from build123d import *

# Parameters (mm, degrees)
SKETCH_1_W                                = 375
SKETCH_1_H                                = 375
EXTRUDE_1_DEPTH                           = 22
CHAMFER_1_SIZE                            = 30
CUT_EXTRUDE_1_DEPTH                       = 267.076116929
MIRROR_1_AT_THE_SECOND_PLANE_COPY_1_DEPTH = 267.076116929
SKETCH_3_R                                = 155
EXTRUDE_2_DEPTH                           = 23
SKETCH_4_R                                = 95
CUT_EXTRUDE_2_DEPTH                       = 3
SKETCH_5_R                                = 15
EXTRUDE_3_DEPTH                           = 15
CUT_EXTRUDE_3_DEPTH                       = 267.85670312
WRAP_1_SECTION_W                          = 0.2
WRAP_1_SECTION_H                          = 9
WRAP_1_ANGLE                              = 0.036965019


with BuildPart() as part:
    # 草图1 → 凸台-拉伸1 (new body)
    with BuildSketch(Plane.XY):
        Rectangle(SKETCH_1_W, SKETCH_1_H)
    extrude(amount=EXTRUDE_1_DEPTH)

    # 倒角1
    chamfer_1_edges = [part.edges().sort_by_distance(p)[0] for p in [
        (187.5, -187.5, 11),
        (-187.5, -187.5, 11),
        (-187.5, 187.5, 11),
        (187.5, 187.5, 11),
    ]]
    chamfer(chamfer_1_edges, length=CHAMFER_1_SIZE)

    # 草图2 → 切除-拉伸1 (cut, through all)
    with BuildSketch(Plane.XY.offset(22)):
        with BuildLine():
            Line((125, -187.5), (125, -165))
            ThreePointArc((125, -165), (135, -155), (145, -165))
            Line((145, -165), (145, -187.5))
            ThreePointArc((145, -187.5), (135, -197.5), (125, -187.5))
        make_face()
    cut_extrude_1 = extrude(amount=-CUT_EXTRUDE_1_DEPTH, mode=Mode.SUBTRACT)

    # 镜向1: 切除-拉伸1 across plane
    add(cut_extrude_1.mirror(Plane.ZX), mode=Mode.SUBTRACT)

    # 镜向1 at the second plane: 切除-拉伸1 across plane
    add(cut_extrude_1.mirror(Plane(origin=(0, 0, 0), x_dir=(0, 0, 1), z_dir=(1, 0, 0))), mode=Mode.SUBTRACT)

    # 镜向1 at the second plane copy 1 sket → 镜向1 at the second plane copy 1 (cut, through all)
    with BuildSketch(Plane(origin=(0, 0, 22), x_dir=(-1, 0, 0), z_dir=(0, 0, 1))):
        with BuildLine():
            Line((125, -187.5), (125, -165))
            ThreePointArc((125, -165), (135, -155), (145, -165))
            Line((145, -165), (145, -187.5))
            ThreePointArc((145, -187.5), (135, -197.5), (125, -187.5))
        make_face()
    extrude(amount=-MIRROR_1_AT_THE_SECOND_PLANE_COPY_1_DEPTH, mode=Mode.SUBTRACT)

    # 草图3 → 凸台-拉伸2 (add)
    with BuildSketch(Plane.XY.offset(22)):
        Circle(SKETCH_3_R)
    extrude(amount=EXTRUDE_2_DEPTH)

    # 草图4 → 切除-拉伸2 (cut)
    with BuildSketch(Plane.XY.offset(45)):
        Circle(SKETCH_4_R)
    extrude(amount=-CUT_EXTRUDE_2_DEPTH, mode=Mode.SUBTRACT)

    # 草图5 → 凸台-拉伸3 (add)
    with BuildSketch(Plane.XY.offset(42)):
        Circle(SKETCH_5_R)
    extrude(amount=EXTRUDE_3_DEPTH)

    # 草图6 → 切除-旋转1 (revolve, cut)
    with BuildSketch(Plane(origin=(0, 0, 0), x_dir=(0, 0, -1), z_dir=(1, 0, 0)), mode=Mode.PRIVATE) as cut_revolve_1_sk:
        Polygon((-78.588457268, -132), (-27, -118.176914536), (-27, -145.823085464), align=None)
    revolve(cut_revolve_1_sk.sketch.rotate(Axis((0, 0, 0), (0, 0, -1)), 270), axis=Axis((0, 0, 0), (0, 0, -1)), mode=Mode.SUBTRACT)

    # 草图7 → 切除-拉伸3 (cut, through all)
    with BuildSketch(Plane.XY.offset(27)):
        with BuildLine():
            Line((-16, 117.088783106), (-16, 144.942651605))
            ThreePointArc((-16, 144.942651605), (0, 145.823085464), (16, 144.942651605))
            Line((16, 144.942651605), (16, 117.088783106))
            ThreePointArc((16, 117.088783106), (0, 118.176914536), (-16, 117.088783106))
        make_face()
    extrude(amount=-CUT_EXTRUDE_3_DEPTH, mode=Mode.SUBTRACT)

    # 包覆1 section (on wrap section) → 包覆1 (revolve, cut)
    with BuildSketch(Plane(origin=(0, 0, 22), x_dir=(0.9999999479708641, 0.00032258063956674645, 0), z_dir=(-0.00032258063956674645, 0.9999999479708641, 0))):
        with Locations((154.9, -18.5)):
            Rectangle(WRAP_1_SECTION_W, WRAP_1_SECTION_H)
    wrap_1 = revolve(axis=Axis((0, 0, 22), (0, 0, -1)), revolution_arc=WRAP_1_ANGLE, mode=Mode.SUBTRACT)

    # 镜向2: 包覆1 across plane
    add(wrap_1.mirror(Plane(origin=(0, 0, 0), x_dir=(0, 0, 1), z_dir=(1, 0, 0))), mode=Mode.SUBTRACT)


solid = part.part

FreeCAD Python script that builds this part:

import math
import FreeCAD as App
import Part
import Sketcher
from FreeCAD import Vector
Q = App.Units.Quantity


def edges_at(feature, points):
    """Names of the edges that pass closest to the given points."""
    edges = feature.Shape.Edges
    near = lambda p: min(range(len(edges)), key=lambda i: edges[i].distToShape(Part.Vertex(*p))[0])
    return sorted({f"Edge{near(p) + 1}" for p in points})

doc = App.newDocument("Part")
params = doc.addObject("Spreadsheet::Sheet", "Params")
for row, (alias, value) in enumerate([
    ("sketch1_width", "375 mm"),
    ("pad1_length", "22 mm"),
    ("chamfer_size", "30 mm"),
    ("sketch2_radius", "10 mm"),
    ("sketch2_height", "22.5 mm"),
    ("sketch3_radius", "10 mm"),
    ("sketch3_height", "22.5 mm"),
    ("sketch4_diameter", "310 mm"),
    ("pad2_length", "23 mm"),
    ("sketch5_diameter", "190 mm"),
    ("pocket3_length", "3 mm"),
    ("sketch6_diameter", "30 mm"),
    ("pad3_length", "15 mm"),
    ("groove_angle", "360 deg"),
    ("sketch9_height", "9 mm"),
    ("sketch9_width", "0.2 mm"),
    ("groove2_angle", "0.036965 deg"),
], start=1):
    params.set(f"A{row}", alias)
    params.set(f"B{row}", "=" + value)
    params.setAlias(f"B{row}", alias)

body = doc.addObject("PartDesign::Body", "Body")

# Sketch on XY plane
sketch1 = body.newObject("Sketcher::SketchObject", "Sketch")
sketch1.AttachmentSupport = (doc.getObject("XY_Plane"), [""])
sketch1.MapMode = "FlatFace"
sketch1.addGeometry([
    Part.LineSegment(Vector(-188, 188, 0), Vector(-188, -188, 0)),
    Part.LineSegment(Vector(-188, -188, 0), Vector(188, -188, 0)),
    Part.LineSegment(Vector(188, -188, 0), Vector(188, 188, 0)),
    Part.LineSegment(Vector(188, 188, 0), Vector(-188, 188, 0)),
], False)
sketch1.addConstraint([
    Sketcher.Constraint("Coincident", 0, 2, 1, 1),
    Sketcher.Constraint("Coincident", 1, 2, 2, 1),
    Sketcher.Constraint("Coincident", 2, 2, 3, 1),
    Sketcher.Constraint("Coincident", 3, 2, 0, 1),
    Sketcher.Constraint("Vertical", 0),
    Sketcher.Constraint("Horizontal", 1),
    Sketcher.Constraint("Vertical", 2),
    Sketcher.Constraint("Horizontal", 3),
    Sketcher.Constraint("Symmetric", 0, 2, 2, 2, -1, 1),
    Sketcher.Constraint("Equal", 3, 0),
    Sketcher.Constraint("DistanceX", 1, 1, 1, 2, 375.0),
])
sketch1.setExpression("Constraints[10]", "Params.sketch1_width")
pad1 = body.newObject("PartDesign::Pad", "Pad")
pad1.Profile = sketch1
pad1.setExpression("Length", "Params.pad1_length")
doc.recompute()

chamfer = body.newObject("PartDesign::Chamfer", "Chamfer")
chamfer.Base = (pad1, edges_at(pad1, [
    (187.5, -187.5, 11),
    (-187.5, -187.5, 11),
    (-187.5, 187.5, 11),
    (187.5, 187.5, 11),
]))
chamfer.setExpression("Size", "Params.chamfer_size")

# Sketch on XY plane
sketch2 = body.newObject("Sketcher::SketchObject", "Sketch001")
sketch2.AttachmentSupport = (doc.getObject("XY_Plane"), [""])
sketch2.MapMode = "FlatFace"
sketch2.AttachmentOffset = App.Placement(Vector(0, 0, 22), App.Rotation())
sketch2.addGeometry([
    Part.LineSegment(Vector(125, -165, 0), Vector(125, -188, 0)),
    Part.ArcOfCircle(Part.Circle(Vector(135, -188, 0), Vector(0, 0, 1), 10), math.radians(180), math.radians(360)),
    Part.LineSegment(Vector(145, -188, 0), Vector(145, -165, 0)),
    Part.ArcOfCircle(Part.Circle(Vector(135, -165, 0), Vector(0, 0, 1), 10), math.radians(0), math.radians(180)),
], False)
sketch2.addConstraint([
    Sketcher.Constraint("Tangent", 0, 2, 1, 1),
    Sketcher.Constraint("Tangent", 1, 2, 2, 1),
    Sketcher.Constraint("Tangent", 2, 2, 3, 1),
    Sketcher.Constraint("Tangent", 3, 2, 0, 1),
    Sketcher.Constraint("Vertical", 0),
    Sketcher.Constraint("Vertical", 2),
    Sketcher.Constraint("Radius", 1, 10.0),
    Sketcher.Constraint("DistanceY", 0, 2, 0, 1, 22.5),
    Sketcher.Constraint("DistanceX", -1, 1, 1, 3, 135.0),
    Sketcher.Constraint("DistanceY", 3, 3, -1, 1, 165.0),
])
sketch2.setExpression("Constraints[6]", "Params.sketch2_radius")
sketch2.setExpression("Constraints[7]", "Params.sketch2_height")
pocket1 = body.newObject("PartDesign::Pocket", "Pocket")
pocket1.Profile = sketch2
pocket1.Type = "ThroughAll"
doc.recompute()

mirrored = body.newObject("PartDesign::Mirrored", "Mirrored")
mirrored.Originals = [pocket1]
mirrored.MirrorPlane = (doc.getObject("XZ_Plane"), [""])
body.Tip = mirrored
doc.recompute()

mirrored2 = body.newObject("PartDesign::Mirrored", "Mirrored001")
mirrored2.Originals = [pocket1]
mirrored2.MirrorPlane = (doc.getObject("YZ_Plane"), [""])
body.Tip = mirrored2

# Sketch on XY plane
sketch3 = body.newObject("Sketcher::SketchObject", "Sketch002")
sketch3.AttachmentSupport = (doc.getObject("XY_Plane"), [""])
sketch3.MapMode = "FlatFace"
sketch3.AttachmentOffset = App.Placement(Vector(0, 0, 22), App.Rotation())
sketch3.addGeometry([
    Part.LineSegment(Vector(-125, 165, 0), Vector(-125, 188, 0)),
    Part.ArcOfCircle(Part.Circle(Vector(-135, 188, 0), Vector(0, 0, 1), 10), math.radians(0), math.radians(180)),
    Part.LineSegment(Vector(-145, 188, 0), Vector(-145, 165, 0)),
    Part.ArcOfCircle(Part.Circle(Vector(-135, 165, 0), Vector(0, 0, 1), 10), math.radians(180), math.radians(360)),
], False)
sketch3.addConstraint([
    Sketcher.Constraint("Tangent", 0, 2, 1, 1),
    Sketcher.Constraint("Tangent", 1, 2, 2, 1),
    Sketcher.Constraint("Tangent", 2, 2, 3, 1),
    Sketcher.Constraint("Tangent", 3, 2, 0, 1),
    Sketcher.Constraint("Vertical", 0),
    Sketcher.Constraint("Vertical", 2),
    Sketcher.Constraint("Radius", 1, 10.0),
    Sketcher.Constraint("DistanceY", 0, 1, 0, 2, 22.5),
    Sketcher.Constraint("DistanceX", 1, 3, -1, 1, 135.0),
    Sketcher.Constraint("DistanceY", -1, 1, 3, 3, 165.0),
])
sketch3.setExpression("Constraints[6]", "Params.sketch3_radius")
sketch3.setExpression("Constraints[7]", "Params.sketch3_height")
pocket2 = body.newObject("PartDesign::Pocket", "Pocket001")
pocket2.Profile = sketch3
pocket2.Type = "ThroughAll"

# Sketch on XY plane
sketch4 = body.newObject("Sketcher::SketchObject", "Sketch003")
sketch4.AttachmentSupport = (doc.getObject("XY_Plane"), [""])
sketch4.MapMode = "FlatFace"
sketch4.AttachmentOffset = App.Placement(Vector(0, 0, 22), App.Rotation())
sketch4.addGeometry(Part.Circle(Vector(0, 0, 0), Vector(0, 0, 1), 155), False)
sketch4.addConstraint([
    Sketcher.Constraint("Coincident", 0, 3, -1, 1),
    Sketcher.Constraint("Diameter", 0, 310.0),
])
sketch4.setExpression("Constraints[1]", "Params.sketch4_diameter")
pad2 = body.newObject("PartDesign::Pad", "Pad001")
pad2.Profile = sketch4
pad2.setExpression("Length", "Params.pad2_length")

# Sketch on XY plane
sketch5 = body.newObject("Sketcher::SketchObject", "Sketch004")
sketch5.AttachmentSupport = (doc.getObject("XY_Plane"), [""])
sketch5.MapMode = "FlatFace"
sketch5.AttachmentOffset = App.Placement(Vector(0, 0, 45), App.Rotation())
sketch5.addGeometry(Part.Circle(Vector(0, 0, 0), Vector(0, 0, 1), 95), False)
sketch5.addConstraint([
    Sketcher.Constraint("Coincident", 0, 3, -1, 1),
    Sketcher.Constraint("Diameter", 0, 190.0),
])
sketch5.setExpression("Constraints[1]", "Params.sketch5_diameter")
pocket3 = body.newObject("PartDesign::Pocket", "Pocket002")
pocket3.Profile = sketch5
pocket3.setExpression("Length", "Params.pocket3_length")

# Sketch on XY plane
sketch6 = body.newObject("Sketcher::SketchObject", "Sketch005")
sketch6.AttachmentSupport = (doc.getObject("XY_Plane"), [""])
sketch6.MapMode = "FlatFace"
sketch6.AttachmentOffset = App.Placement(Vector(0, 0, 42), App.Rotation())
sketch6.addGeometry(Part.Circle(Vector(0, 0, 0), Vector(0, 0, 1), 15), False)
sketch6.addConstraint([
    Sketcher.Constraint("Coincident", 0, 3, -1, 1),
    Sketcher.Constraint("Diameter", 0, 30.0),
])
sketch6.setExpression("Constraints[1]", "Params.sketch6_diameter")
pad3 = body.newObject("PartDesign::Pad", "Pad002")
pad3.Profile = sketch6
pad3.setExpression("Length", "Params.pad3_length")

# Sketch on YZ plane
sketch7 = body.newObject("Sketcher::SketchObject", "Sketch006")
sketch7.AttachmentSupport = (doc.getObject("YZ_Plane"), [""])
sketch7.MapMode = "FlatFace"
sketch7.addGeometry([
    Part.LineSegment(Vector(-118, 27, 0), Vector(-132, 79, 0)),
    Part.LineSegment(Vector(-132, 79, 0), Vector(-146, 27, 0)),
    Part.LineSegment(Vector(-146, 27, 0), Vector(-118, 27, 0)),
], False)
sketch7.addConstraint([
    Sketcher.Constraint("Coincident", 0, 2, 1, 1),
    Sketcher.Constraint("Coincident", 1, 2, 2, 1),
    Sketcher.Constraint("Coincident", 2, 2, 0, 1),
    Sketcher.Constraint("Horizontal", 2),
    Sketcher.Constraint("Equal", 0, 1),
    Sketcher.Constraint("Angle", 0, Q("105 deg")),
    Sketcher.Constraint("DistanceX", 0, 2, -1, 1, 132.0),
    Sketcher.Constraint("DistanceY", -1, 1, 1, 2, 27.0),
    Sketcher.Constraint("Distance", 0, 53.408301),
])
groove = body.newObject("PartDesign::Groove", "Groove")
groove.Profile = sketch7
groove.ReferenceAxis = (sketch7, ["V_Axis"])
groove.setExpression("Angle", "Params.groove_angle")

# Sketch on XY plane
sketch8 = body.newObject("Sketcher::SketchObject", "Sketch007")
sketch8.AttachmentSupport = (doc.getObject("XY_Plane"), [""])
sketch8.MapMode = "FlatFace"
sketch8.AttachmentOffset = App.Placement(Vector(0, 0, 27), App.Rotation())
sketch8.addGeometry([
    Part.LineSegment(Vector(-16, 145, 0), Vector(-16, 117, 0)),
    Part.ArcOfCircle(Part.Circle(Vector(0, 0, 0), Vector(0, 0, 1), 118), math.radians(82.22), math.radians(97.78)),
    Part.LineSegment(Vector(16, 117, 0), Vector(16, 145, 0)),
    Part.ArcOfCircle(Part.Circle(Vector(0, 0, 0), Vector(0, 0, 1), 146), math.radians(83.7), math.radians(96.3)),
], False)
sketch8.addConstraint([
    Sketcher.Constraint("Coincident", 0, 2, 1, 2),
    Sketcher.Constraint("Coincident", 1, 1, 2, 1),
    Sketcher.Constraint("Coincident", 2, 2, 3, 1),
    Sketcher.Constraint("Coincident", 3, 2, 0, 1),
    Sketcher.Constraint("Vertical", 0),
    Sketcher.Constraint("Vertical", 2),
    Sketcher.Constraint("Coincident", 1, 3, -1, 1),
    Sketcher.Constraint("Coincident", 3, 3, -1, 1),
    Sketcher.Constraint("Horizontal", 0, 2, 1, 1),
    Sketcher.Constraint("DistanceX", 0, 2, -1, 1, 16.0),
    Sketcher.Constraint("Radius", 1, 118.176915),
    Sketcher.Constraint("Radius", 3, 145.823085),
])
pocket4 = body.newObject("PartDesign::Pocket", "Pocket003")
pocket4.Profile = sketch8
pocket4.Type = "ThroughAll"

# Sketch on an angled plane
sketch9 = body.newObject("Sketcher::SketchObject", "Sketch008")
sketch9.Placement = App.Placement(Vector(0, 0, 22), App.Rotation(Vector(0.999999948, 0.000322581, 0), Vector(0, 0, -1), Vector(-0.000322581, 0.999999948, 0), "ZXY"))
sketch9.addGeometry([
    Part.LineSegment(Vector(154.8, -14, 0), Vector(154.8, -23, 0)),
    Part.LineSegment(Vector(154.8, -23, 0), Vector(155, -23, 0)),
    Part.LineSegment(Vector(155, -23, 0), Vector(155, -14, 0)),
    Part.LineSegment(Vector(155, -14, 0), Vector(154.8, -14, 0)),
], False)
sketch9.addConstraint([
    Sketcher.Constraint("Coincident", 0, 2, 1, 1),
    Sketcher.Constraint("Coincident", 1, 2, 2, 1),
    Sketcher.Constraint("Coincident", 2, 2, 3, 1),
    Sketcher.Constraint("Coincident", 3, 2, 0, 1),
    Sketcher.Constraint("Vertical", 0),
    Sketcher.Constraint("Horizontal", 1),
    Sketcher.Constraint("Vertical", 2),
    Sketcher.Constraint("Horizontal", 3),
    Sketcher.Constraint("DistanceY", 0, 2, 0, 1, 9.0),
    Sketcher.Constraint("DistanceX", 1, 1, 1, 2, 0.2),
    Sketcher.Constraint("DistanceY", 0, 2, -1, 1, 23.0),
    Sketcher.Constraint("DistanceX", -1, 1, 1, 2, 155.0),
])
sketch9.setExpression("Constraints[8]", "Params.sketch9_height")
sketch9.setExpression("Constraints[9]", "Params.sketch9_width")
groove2 = body.newObject("PartDesign::Groove", "Groove001")
groove2.Profile = sketch9
groove2.ReferenceAxis = (sketch9, ["V_Axis"])
groove2.setExpression("Angle", "Params.groove2_angle")
doc.recompute()

mirrored3 = body.newObject("PartDesign::Mirrored", "Mirrored002")
mirrored3.Originals = [groove2]
mirrored3.MirrorPlane = (doc.getObject("YZ_Plane"), [""])
body.Tip = mirrored3

doc.recompute()
